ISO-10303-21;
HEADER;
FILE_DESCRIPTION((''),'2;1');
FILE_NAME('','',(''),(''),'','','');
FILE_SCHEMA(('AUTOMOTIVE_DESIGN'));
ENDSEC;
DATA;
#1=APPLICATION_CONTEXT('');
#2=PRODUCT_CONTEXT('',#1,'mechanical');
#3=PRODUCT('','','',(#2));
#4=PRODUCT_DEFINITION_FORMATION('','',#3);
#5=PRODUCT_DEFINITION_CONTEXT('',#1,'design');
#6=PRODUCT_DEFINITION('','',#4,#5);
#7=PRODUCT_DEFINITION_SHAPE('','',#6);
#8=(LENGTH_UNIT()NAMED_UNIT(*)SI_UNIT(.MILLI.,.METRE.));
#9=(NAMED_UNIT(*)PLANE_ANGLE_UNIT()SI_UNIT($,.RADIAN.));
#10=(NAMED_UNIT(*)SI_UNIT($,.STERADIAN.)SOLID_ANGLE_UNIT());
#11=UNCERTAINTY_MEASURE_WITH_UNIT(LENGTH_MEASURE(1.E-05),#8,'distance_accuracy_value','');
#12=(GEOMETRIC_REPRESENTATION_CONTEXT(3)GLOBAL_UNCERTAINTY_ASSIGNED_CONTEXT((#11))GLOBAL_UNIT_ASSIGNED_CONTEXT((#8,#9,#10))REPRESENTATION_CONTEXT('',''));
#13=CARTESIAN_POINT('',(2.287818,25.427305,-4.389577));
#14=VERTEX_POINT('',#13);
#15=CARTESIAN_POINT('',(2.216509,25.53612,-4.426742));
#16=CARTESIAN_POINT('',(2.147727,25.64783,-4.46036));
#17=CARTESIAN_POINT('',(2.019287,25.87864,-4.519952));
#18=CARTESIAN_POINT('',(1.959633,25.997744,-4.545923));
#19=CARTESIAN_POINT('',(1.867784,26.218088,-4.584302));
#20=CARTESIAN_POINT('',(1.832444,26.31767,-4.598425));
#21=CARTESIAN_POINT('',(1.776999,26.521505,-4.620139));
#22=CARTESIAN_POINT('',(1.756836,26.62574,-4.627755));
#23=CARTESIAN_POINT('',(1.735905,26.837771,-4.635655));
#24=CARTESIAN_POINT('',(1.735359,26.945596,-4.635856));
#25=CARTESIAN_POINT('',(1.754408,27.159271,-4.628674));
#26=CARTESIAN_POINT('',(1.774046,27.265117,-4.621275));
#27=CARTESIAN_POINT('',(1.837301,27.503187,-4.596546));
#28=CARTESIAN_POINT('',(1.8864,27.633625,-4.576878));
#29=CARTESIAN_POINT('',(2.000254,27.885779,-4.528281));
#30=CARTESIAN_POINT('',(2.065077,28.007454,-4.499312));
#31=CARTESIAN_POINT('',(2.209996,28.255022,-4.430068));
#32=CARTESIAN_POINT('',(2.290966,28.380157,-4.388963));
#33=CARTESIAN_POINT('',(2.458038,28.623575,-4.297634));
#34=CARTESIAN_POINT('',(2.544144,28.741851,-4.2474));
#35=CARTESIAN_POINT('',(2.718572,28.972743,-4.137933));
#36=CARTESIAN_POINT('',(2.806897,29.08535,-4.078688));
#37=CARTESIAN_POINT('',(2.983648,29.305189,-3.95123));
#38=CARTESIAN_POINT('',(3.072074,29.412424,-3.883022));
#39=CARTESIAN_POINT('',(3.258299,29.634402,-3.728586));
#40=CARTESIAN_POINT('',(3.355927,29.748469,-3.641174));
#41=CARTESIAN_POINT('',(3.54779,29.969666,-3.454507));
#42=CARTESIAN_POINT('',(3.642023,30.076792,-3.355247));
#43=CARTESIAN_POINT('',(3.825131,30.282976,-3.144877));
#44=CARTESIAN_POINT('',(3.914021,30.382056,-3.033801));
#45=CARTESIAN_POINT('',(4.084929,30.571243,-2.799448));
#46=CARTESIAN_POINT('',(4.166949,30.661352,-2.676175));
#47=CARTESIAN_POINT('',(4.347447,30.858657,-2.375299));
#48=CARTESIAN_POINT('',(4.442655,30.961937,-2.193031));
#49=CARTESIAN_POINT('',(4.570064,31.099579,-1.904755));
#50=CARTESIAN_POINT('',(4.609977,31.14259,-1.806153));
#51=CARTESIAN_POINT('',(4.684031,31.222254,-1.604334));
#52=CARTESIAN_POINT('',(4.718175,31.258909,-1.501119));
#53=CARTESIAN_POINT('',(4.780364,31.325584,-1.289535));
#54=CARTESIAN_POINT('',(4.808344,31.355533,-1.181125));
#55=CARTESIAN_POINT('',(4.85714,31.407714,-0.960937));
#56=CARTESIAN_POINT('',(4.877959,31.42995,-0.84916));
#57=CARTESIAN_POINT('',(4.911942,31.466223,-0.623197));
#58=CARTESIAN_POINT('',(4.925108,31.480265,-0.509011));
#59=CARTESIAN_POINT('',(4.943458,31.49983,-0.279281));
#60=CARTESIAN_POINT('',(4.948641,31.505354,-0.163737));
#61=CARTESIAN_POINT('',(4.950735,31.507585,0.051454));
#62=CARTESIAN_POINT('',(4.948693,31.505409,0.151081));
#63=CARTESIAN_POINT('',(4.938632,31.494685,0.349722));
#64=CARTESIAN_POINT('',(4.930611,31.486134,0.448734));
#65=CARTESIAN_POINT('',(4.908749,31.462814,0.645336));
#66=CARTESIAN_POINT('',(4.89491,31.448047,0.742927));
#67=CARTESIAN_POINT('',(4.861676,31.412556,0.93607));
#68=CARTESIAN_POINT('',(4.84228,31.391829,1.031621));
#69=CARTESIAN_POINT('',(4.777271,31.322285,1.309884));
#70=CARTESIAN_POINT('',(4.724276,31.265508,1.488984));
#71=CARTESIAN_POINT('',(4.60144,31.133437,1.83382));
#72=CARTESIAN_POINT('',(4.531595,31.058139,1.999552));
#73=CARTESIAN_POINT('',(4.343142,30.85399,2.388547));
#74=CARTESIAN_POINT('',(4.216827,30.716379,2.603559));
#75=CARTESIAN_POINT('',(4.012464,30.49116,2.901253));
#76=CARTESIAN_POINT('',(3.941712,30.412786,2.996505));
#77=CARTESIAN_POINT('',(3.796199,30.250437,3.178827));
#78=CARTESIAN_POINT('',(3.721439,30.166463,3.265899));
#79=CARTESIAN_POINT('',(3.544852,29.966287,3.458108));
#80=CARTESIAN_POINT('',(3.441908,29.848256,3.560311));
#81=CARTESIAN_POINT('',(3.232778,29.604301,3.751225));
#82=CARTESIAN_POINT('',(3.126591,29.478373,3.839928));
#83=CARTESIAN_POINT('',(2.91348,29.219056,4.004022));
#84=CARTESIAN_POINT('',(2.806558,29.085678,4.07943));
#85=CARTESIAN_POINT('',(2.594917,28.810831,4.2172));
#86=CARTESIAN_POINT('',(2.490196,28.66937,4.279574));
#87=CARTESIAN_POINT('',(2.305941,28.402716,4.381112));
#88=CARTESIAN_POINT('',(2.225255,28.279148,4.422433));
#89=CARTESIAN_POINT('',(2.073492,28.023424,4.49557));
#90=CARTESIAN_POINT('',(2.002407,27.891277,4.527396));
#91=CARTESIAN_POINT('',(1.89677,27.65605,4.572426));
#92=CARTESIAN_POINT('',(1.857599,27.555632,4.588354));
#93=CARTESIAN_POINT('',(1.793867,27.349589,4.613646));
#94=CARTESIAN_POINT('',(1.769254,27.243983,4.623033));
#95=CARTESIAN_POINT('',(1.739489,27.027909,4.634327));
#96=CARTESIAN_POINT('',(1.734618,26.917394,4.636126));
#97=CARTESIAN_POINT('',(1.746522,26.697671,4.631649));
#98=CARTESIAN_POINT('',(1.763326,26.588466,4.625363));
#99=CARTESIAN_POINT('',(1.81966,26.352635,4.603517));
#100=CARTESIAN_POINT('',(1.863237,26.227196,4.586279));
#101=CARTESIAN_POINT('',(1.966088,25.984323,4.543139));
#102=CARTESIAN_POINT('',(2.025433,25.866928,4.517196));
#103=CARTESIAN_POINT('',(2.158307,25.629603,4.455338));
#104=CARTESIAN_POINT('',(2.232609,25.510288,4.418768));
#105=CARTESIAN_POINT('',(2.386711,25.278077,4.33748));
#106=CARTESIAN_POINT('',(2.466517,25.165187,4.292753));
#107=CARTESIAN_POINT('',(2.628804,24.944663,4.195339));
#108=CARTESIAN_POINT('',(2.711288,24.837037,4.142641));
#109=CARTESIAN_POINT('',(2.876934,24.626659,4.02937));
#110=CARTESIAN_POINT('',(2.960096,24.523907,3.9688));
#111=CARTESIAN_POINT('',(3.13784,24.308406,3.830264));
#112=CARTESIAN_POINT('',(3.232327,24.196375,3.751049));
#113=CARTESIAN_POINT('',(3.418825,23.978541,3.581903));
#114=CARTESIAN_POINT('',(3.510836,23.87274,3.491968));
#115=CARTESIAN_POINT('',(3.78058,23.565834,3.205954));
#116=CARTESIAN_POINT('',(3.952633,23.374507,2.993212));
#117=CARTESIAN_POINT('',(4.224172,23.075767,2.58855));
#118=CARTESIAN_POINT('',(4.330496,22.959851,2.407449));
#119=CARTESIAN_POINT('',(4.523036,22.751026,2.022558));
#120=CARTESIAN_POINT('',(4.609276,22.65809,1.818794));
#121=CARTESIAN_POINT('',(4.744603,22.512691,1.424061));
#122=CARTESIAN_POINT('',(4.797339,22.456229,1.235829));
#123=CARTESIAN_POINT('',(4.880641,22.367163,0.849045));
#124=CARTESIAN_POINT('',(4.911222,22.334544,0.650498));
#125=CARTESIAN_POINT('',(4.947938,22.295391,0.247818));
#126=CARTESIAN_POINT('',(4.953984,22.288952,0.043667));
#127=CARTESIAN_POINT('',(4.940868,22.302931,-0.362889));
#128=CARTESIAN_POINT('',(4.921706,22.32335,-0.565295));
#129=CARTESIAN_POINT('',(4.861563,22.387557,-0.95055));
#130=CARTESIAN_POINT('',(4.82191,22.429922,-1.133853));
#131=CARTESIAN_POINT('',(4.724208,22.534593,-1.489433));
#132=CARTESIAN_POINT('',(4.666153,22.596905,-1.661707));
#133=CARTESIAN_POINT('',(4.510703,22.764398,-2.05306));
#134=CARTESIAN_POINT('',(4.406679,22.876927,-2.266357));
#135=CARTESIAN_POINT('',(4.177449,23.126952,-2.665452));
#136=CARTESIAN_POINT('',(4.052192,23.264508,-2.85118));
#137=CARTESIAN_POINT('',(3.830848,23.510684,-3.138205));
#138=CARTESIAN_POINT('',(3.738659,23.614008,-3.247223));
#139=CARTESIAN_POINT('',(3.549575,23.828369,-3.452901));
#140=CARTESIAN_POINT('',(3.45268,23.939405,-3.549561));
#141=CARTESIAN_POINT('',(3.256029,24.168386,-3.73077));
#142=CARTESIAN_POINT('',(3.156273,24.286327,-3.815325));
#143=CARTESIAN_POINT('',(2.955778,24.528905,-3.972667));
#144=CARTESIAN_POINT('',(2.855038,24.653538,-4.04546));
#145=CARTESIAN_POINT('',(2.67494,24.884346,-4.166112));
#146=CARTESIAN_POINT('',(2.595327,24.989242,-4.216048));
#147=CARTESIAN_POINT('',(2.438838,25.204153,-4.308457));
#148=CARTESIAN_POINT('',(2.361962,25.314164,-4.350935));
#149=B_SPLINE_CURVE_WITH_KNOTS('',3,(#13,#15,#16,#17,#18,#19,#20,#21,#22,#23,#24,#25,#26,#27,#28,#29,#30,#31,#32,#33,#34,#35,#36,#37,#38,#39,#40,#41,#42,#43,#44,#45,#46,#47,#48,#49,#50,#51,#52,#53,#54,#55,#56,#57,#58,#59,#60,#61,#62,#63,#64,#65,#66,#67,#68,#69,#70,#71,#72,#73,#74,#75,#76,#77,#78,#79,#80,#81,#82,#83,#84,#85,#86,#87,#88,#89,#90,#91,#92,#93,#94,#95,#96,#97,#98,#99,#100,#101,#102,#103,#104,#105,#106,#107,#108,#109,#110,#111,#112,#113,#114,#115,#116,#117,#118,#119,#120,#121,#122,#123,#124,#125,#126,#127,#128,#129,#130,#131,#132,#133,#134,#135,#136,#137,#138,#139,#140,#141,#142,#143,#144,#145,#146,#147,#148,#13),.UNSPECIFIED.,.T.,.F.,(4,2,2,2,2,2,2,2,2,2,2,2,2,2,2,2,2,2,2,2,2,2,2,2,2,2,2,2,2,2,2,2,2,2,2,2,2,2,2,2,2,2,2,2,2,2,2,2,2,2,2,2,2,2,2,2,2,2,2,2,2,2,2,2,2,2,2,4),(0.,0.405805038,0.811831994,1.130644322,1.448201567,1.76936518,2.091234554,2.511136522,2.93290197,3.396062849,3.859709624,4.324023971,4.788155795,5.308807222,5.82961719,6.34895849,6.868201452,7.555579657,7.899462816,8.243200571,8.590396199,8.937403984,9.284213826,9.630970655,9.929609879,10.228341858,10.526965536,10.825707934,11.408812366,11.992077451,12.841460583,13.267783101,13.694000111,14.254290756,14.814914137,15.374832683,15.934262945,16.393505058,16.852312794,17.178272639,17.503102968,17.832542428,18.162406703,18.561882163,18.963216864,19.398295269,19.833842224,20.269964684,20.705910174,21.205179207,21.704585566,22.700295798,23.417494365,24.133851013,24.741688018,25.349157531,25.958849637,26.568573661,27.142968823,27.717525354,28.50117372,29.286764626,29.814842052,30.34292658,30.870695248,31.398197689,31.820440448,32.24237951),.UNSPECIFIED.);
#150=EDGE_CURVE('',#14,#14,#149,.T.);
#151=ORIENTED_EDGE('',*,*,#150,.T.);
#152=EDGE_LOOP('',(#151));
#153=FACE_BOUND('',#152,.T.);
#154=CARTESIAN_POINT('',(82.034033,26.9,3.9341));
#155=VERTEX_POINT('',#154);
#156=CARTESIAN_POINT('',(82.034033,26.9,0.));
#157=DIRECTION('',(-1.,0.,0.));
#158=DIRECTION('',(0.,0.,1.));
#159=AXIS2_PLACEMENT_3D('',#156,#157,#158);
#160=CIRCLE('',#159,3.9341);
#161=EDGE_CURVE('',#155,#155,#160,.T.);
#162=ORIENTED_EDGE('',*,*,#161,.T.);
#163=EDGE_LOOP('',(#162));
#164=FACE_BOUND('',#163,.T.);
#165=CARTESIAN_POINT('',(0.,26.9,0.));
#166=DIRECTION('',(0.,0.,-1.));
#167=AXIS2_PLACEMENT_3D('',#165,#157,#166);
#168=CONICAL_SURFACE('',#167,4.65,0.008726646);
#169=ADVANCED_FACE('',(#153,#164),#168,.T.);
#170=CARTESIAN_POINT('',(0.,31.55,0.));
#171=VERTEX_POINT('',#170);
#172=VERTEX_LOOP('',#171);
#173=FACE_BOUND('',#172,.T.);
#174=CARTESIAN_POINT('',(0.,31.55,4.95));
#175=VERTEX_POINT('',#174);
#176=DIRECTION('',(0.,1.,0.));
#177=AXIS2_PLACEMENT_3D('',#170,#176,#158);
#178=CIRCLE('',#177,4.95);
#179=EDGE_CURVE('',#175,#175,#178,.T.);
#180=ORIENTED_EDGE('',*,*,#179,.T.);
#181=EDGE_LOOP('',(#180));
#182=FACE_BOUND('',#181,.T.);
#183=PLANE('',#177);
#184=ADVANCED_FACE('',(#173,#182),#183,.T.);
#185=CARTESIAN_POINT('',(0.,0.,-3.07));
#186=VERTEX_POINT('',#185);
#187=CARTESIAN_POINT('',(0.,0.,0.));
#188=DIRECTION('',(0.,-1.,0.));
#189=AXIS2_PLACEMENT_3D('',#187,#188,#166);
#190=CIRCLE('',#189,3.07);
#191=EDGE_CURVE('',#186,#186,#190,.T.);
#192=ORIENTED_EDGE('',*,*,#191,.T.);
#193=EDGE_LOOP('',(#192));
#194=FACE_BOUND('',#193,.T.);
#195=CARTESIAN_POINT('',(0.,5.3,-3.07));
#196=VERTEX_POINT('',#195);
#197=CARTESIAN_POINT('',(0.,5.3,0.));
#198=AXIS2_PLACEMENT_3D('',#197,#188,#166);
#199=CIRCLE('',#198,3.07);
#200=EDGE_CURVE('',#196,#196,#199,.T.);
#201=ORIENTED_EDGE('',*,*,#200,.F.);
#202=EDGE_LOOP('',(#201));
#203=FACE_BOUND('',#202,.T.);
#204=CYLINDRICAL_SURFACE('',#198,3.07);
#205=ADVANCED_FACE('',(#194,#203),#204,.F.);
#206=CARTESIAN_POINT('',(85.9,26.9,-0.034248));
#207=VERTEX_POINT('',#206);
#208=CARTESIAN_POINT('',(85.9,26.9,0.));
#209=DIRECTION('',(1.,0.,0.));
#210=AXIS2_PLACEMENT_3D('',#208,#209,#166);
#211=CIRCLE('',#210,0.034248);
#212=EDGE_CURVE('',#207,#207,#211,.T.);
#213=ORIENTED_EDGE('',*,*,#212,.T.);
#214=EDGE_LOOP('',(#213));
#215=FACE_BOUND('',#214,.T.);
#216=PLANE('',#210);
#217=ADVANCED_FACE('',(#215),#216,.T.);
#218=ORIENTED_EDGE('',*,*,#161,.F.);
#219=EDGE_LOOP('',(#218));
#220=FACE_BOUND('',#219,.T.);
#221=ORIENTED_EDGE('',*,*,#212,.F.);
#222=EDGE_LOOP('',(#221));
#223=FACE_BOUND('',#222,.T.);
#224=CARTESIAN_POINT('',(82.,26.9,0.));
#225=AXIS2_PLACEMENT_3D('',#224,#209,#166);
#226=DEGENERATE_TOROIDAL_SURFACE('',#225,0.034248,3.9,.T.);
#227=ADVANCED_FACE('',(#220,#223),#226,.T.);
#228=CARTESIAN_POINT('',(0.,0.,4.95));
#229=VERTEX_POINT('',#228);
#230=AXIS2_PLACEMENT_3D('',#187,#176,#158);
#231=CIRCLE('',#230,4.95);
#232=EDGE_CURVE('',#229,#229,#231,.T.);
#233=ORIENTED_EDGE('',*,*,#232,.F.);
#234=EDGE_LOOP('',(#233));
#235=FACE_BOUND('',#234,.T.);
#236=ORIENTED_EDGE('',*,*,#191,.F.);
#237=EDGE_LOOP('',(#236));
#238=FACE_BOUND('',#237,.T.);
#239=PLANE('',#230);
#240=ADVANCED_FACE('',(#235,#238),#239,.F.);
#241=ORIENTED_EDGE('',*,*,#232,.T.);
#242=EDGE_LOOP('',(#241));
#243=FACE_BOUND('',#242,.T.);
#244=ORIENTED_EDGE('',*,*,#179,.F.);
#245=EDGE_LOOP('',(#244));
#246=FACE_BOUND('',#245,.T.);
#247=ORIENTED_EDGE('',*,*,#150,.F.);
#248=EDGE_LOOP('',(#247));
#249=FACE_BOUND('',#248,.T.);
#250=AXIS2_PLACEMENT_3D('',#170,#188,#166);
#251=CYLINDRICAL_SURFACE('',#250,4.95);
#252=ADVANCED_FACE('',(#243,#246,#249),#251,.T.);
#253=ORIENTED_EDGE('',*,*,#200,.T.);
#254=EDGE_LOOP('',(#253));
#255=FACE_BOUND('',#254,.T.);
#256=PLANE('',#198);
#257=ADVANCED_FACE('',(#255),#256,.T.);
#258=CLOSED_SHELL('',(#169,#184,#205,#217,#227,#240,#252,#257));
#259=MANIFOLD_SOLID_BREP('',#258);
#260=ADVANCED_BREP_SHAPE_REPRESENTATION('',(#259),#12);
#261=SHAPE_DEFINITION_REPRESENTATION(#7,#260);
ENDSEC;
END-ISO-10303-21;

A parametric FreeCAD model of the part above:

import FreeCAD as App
import Part
import Sketcher


def edges_at(feature, points):
    """Names of the edges that pass closest to the given points."""
    edges = feature.Shape.Edges
    near = lambda p: min(range(len(edges)), key=lambda i: edges[i].distToShape(Part.Vertex(*p))[0])
    return sorted({f"Edge{near(p) + 1}" for p in points})

doc = App.newDocument("Part")
body = doc.addObject("PartDesign::Body", "Body")

# Sketch on XZ plane
sketch1 = doc.addObject("Sketcher::SketchObject", "Sketch")
body.addObject(sketch1)
sketch1.AttachmentSupport = (doc.XZ_Plane, [""])
sketch1.MapMode = "FlatFace"
sketch1.addGeometry(Part.Circle(App.Vector(0, 0, 0), App.Vector(0, 0, 1), 5), False)
sketch1.addConstraint(Sketcher.Constraint("Coincident", 0, 3, -1, 1))
sketch1.addConstraint(Sketcher.Constraint("Diameter", 0, 9.9))
pad1 = doc.addObject("PartDesign::Pad", "Pad")
body.addObject(pad1)
pad1.Profile = sketch1
pad1.Length = 31.55
pad1.Reversed = True

# Sketch on YZ plane
sketch2 = doc.addObject("Sketcher::SketchObject", "Sketch001")
body.addObject(sketch2)
sketch2.AttachmentSupport = (doc.YZ_Plane, [""])
sketch2.MapMode = "FlatFace"
sketch2.addGeometry(Part.Circle(App.Vector(26.9, 0, 0), App.Vector(0, 0, 1), 4.7), False)
sketch2.addConstraint(Sketcher.Constraint("PointOnObject", 0, 3, -1))
sketch2.addConstraint(Sketcher.Constraint("Diameter", 0, 9.3))
sketch2.addConstraint(Sketcher.Constraint("DistanceX", -1, 1, 0, 3, 26.9))
pad2 = doc.addObject("PartDesign::Pad", "Pad001")
body.addObject(pad2)
pad2.Profile = sketch2
pad2.Length = 85.9
pad2.TaperAngle = -0.5
doc.recompute()

fillet = doc.addObject("PartDesign::Fillet", "Fillet")
body.addObject(fillet)
fillet.Base = (pad2, edges_at(pad2, [(85.9, 26.9, 3.9)]))
fillet.Radius = 3.9

# Sketch on XZ plane
sketch3 = doc.addObject("Sketcher::SketchObject", "Sketch002")
body.addObject(sketch3)
sketch3.AttachmentSupport = (doc.XZ_Plane, [""])
sketch3.MapMode = "FlatFace"
sketch3.addGeometry(Part.Circle(App.Vector(0, 0, 0), App.Vector(0, 0, 1), 3.1), False)
sketch3.addConstraint(Sketcher.Constraint("Coincident", 0, 3, -1, 1))
sketch3.addConstraint(Sketcher.Constraint("Diameter", 0, 6.14))
pocket1 = doc.addObject("PartDesign::Pocket", "Pocket")
body.addObject(pocket1)
pocket1.Profile = sketch3
pocket1.Length = 5.3

doc.recompute()
